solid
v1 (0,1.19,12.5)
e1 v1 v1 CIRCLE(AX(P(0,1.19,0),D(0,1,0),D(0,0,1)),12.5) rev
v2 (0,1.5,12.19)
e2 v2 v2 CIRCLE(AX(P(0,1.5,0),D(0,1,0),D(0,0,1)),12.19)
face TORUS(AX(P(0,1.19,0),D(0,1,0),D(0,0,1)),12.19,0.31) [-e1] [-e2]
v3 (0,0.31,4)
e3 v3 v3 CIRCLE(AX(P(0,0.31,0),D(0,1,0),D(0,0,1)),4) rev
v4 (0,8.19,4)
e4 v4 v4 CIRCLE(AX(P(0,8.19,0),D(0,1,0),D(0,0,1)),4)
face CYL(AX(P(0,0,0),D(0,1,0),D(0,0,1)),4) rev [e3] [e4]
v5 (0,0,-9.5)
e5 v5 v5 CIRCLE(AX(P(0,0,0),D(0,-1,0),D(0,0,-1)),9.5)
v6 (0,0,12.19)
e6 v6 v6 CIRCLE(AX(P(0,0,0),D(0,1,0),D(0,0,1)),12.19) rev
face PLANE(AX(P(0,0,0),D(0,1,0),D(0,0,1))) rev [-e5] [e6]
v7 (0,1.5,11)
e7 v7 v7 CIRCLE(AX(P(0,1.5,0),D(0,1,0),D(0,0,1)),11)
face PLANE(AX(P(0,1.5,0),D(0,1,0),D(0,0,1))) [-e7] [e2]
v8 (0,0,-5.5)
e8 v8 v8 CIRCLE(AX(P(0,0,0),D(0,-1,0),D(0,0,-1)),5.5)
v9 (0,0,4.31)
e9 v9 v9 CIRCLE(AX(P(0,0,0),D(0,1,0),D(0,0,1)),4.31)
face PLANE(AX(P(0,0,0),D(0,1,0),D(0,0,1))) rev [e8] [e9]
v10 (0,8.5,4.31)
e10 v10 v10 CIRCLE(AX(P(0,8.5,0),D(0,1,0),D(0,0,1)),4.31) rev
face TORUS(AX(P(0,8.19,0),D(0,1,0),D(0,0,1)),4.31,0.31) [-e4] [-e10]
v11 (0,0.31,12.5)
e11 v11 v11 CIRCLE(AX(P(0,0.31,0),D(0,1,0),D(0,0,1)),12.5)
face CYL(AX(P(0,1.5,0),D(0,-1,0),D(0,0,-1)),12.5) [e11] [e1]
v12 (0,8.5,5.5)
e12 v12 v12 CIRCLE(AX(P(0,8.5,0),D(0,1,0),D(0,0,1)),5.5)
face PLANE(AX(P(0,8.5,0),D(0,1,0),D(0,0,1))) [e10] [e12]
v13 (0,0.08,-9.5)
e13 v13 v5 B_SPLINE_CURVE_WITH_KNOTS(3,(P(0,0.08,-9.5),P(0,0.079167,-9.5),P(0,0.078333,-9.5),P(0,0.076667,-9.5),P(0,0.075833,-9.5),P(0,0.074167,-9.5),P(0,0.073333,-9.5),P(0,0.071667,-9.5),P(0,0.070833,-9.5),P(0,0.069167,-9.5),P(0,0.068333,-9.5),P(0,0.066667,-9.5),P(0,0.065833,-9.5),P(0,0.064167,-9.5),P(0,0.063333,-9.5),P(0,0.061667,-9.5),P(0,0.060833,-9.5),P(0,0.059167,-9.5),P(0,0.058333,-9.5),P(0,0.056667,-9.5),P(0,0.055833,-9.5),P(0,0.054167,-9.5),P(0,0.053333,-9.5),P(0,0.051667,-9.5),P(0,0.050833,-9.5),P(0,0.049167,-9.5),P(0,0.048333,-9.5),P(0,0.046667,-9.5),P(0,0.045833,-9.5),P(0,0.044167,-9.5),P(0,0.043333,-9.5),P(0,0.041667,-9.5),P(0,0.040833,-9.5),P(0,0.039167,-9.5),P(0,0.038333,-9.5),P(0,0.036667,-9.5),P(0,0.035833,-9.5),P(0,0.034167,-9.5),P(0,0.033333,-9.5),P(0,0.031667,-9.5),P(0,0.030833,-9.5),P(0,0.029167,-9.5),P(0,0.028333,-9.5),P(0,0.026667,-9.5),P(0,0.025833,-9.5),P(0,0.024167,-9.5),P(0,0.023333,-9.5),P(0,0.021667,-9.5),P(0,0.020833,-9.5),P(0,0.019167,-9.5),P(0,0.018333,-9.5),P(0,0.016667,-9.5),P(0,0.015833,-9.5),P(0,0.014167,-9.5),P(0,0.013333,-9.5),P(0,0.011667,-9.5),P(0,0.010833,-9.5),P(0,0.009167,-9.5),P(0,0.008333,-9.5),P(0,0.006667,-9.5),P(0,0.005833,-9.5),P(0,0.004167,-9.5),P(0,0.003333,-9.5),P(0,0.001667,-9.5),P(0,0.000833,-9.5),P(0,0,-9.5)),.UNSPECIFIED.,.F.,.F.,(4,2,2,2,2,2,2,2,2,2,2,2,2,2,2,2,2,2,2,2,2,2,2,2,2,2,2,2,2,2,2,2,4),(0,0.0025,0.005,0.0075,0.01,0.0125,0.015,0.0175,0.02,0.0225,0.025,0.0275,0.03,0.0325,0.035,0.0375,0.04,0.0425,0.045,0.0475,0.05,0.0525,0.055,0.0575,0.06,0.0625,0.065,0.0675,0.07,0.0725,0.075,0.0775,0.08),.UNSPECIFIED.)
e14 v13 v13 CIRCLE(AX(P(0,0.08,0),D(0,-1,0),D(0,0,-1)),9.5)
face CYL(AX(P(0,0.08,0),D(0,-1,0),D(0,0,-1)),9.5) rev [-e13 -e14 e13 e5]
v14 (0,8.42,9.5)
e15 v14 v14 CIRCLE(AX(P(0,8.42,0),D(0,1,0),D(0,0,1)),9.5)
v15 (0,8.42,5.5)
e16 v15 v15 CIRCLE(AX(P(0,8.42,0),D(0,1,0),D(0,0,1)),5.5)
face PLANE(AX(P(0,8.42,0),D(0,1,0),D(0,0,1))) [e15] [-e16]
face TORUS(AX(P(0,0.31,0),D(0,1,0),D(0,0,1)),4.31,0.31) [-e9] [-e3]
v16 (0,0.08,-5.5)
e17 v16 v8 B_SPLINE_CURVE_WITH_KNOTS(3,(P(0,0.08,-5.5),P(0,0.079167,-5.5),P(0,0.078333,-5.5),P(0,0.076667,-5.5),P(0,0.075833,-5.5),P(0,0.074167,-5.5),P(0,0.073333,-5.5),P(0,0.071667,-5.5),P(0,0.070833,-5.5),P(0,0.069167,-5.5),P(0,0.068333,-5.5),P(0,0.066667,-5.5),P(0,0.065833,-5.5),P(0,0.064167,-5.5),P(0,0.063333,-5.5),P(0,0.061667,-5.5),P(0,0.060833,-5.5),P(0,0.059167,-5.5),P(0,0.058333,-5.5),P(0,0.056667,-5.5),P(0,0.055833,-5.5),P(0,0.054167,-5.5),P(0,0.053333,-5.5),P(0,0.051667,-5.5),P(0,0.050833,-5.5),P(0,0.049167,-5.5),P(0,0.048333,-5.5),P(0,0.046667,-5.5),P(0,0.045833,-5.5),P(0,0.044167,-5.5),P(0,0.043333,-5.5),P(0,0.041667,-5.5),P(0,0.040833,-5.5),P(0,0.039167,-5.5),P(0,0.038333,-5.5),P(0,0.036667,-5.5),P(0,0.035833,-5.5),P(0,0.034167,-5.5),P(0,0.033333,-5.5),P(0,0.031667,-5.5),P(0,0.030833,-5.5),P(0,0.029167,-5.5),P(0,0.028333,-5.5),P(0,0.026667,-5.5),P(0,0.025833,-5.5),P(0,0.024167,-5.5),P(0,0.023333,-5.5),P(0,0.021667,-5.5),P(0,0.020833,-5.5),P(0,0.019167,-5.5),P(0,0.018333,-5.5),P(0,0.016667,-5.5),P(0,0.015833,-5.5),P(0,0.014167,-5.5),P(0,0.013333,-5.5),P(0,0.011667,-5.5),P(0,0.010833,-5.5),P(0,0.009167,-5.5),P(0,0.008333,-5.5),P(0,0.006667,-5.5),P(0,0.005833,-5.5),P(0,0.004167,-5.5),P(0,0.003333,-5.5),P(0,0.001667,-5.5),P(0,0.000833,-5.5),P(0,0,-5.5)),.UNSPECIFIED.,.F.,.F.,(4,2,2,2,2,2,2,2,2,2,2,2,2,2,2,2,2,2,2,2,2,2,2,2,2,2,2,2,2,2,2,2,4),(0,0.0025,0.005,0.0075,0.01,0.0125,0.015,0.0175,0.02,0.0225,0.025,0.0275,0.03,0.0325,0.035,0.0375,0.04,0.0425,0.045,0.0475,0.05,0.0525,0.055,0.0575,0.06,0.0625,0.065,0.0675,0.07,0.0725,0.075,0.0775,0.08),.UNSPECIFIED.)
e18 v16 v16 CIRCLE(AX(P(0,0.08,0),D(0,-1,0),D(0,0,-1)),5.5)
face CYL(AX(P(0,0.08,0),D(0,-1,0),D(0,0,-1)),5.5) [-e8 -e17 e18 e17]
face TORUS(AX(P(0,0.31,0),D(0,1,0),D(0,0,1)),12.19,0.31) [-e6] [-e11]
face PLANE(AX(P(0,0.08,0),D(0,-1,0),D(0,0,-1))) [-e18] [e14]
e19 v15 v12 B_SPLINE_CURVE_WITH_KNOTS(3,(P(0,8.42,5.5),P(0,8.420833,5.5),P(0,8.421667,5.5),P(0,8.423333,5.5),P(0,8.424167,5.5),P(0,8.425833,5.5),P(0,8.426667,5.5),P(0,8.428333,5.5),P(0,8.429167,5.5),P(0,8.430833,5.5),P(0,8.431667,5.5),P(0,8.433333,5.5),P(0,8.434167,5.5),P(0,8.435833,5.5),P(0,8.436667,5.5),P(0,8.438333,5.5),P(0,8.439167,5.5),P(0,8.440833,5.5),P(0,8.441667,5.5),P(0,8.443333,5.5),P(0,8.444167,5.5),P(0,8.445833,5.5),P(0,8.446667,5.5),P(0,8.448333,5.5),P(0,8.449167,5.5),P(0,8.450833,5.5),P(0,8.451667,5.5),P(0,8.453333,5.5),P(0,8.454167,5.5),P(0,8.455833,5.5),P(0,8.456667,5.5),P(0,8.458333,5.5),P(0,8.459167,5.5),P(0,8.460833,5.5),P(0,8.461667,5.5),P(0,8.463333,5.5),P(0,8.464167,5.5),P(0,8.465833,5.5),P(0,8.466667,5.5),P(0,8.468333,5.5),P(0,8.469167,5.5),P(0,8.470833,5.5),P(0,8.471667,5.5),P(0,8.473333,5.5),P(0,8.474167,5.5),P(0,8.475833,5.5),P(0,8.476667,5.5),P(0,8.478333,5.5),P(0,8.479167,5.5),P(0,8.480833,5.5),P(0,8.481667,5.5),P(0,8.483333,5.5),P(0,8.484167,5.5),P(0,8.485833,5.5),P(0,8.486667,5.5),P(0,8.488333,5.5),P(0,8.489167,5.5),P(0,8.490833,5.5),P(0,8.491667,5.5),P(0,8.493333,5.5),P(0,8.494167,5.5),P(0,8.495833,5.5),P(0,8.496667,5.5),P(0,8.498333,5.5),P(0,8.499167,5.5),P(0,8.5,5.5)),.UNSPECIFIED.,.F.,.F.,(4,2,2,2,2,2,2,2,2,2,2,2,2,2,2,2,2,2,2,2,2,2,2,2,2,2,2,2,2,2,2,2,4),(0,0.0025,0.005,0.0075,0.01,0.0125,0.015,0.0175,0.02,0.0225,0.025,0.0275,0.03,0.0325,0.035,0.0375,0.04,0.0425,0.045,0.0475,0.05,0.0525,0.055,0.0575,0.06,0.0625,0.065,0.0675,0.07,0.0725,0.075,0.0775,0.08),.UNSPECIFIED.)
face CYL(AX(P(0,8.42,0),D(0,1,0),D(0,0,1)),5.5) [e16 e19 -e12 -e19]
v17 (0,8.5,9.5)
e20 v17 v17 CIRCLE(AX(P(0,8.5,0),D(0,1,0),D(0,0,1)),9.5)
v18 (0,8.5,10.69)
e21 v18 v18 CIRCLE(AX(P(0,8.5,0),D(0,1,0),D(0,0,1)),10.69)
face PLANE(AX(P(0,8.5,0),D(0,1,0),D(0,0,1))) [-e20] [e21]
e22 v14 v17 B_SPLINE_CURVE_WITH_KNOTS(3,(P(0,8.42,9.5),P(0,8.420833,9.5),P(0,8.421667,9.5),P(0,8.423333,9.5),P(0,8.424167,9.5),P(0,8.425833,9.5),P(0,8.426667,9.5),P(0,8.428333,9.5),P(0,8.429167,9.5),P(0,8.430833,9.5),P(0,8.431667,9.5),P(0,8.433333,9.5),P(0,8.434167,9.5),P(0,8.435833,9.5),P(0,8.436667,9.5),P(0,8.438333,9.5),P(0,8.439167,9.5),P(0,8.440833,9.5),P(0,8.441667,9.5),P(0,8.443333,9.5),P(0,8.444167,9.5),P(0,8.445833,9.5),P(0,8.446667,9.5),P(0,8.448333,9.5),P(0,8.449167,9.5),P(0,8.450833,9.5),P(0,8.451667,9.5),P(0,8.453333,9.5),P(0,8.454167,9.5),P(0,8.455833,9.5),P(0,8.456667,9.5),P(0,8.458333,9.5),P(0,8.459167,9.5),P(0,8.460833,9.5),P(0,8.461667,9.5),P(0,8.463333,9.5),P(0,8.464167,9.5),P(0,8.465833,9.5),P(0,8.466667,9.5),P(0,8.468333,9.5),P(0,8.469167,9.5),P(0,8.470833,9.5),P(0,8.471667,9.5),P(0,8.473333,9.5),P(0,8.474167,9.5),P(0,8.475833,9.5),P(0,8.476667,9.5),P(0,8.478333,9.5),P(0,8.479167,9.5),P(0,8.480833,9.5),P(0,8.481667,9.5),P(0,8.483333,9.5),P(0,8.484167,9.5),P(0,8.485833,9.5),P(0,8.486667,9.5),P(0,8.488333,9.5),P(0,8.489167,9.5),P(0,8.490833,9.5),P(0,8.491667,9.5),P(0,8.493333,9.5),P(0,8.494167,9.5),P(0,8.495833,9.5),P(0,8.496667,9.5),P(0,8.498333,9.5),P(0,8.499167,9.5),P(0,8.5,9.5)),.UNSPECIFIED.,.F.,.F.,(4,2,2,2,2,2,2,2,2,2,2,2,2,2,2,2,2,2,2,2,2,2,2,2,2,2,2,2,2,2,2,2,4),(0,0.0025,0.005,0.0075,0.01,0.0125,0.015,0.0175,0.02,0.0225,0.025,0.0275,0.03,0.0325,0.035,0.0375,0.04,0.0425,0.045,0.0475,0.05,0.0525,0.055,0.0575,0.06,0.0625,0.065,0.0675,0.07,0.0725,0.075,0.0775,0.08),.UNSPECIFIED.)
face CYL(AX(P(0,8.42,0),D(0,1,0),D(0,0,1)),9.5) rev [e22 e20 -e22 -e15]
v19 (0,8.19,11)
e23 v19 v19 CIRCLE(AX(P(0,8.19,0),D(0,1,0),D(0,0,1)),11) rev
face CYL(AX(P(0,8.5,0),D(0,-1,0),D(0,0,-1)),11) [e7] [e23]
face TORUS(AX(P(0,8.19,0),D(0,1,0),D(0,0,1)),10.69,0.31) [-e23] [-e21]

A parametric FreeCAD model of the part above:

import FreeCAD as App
import Part
import Sketcher

V = App.Vector
Q = App.Units.Quantity


def edges_at(feature, points):
    """Names of the edges that pass closest to the given points."""
    edges = feature.Shape.Edges
    near = lambda p: min(range(len(edges)), key=lambda i: edges[i].distToShape(Part.Vertex(*p))[0])
    return sorted({f"Edge{near(p) + 1}" for p in points})

doc = App.newDocument("Part")
body = doc.addObject("PartDesign::Body", "Body")

# Sketch on XZ plane
sketch1 = body.newObject("Sketcher::SketchObject", "Sketch")
sketch1.AttachmentSupport = (doc.getObject("XZ_Plane"), [""])
sketch1.MapMode = "FlatFace"
sketch1.addGeometry(Part.Circle(V(0, 0, 0), V(0, 0, 1), 12), False)
sketch1.addConstraint(Sketcher.Constraint("Coincident", 0, 3, -1, 1))
sketch1.addConstraint(Sketcher.Constraint("Diameter", 0, Q("25 mm")))
pad1 = body.newObject("PartDesign::Pad", "Pad")
pad1.Profile = sketch1
pad1.Length = 1.5
pad1.Reversed = True

# Sketch on XZ plane
sketch2 = body.newObject("Sketcher::SketchObject", "Sketch001")
sketch2.AttachmentSupport = (doc.getObject("XZ_Plane"), [""])
sketch2.MapMode = "FlatFace"
sketch2.AttachmentOffset = App.Placement(V(0, 0, -1.5), App.Rotation())
sketch2.addGeometry(Part.Circle(V(0, 0, 0), V(0, 0, 1), 11), False)
sketch2.addConstraint(Sketcher.Constraint("Coincident", 0, 3, -1, 1))
sketch2.addConstraint(Sketcher.Constraint("Diameter", 0, Q("22 mm")))
pad2 = body.newObject("PartDesign::Pad", "Pad001")
pad2.Profile = sketch2
pad2.Length = 7
pad2.Reversed = True

# Sketch on XZ plane
sketch3 = body.newObject("Sketcher::SketchObject", "Sketch002")
sketch3.AttachmentSupport = (doc.getObject("XZ_Plane"), [""])
sketch3.MapMode = "FlatFace"
sketch3.AttachmentOffset = App.Placement(V(0, 0, -8.5), App.Rotation())
sketch3.addGeometry(Part.Circle(V(0, 0, 0), V(0, 0, 1), 4), False)
sketch3.addConstraint(Sketcher.Constraint("Coincident", 0, 3, -1, 1))
sketch3.addConstraint(Sketcher.Constraint("Diameter", 0, Q("8 mm")))
pocket1 = body.newObject("PartDesign::Pocket", "Pocket")
pocket1.Profile = sketch3
pocket1.Type = "ThroughAll"
pocket1.Reversed = True

# Sketch on XZ plane
sketch4 = body.newObject("Sketcher::SketchObject", "Sketch003")
sketch4.AttachmentSupport = (doc.getObject("XZ_Plane"), [""])
sketch4.MapMode = "FlatFace"
sketch4.addGeometry(Part.Circle(V(0, 0, 0), V(0, 0, 1), 10), False)
sketch4.addGeometry(Part.Circle(V(0, 0, 0), V(0, 0, 1), 6), False)
sketch4.addConstraint(Sketcher.Constraint("Coincident", 0, 3, -1, 1))
sketch4.addConstraint(Sketcher.Constraint("Coincident", 1, 3, -1, 1))
sketch4.addConstraint(Sketcher.Constraint("Diameter", 0, Q("19 mm")))
sketch4.addConstraint(Sketcher.Constraint("Diameter", 1, Q("11 mm")))
pocket2 = body.newObject("PartDesign::Pocket", "Pocket001")
pocket2.Profile = sketch4
pocket2.Length = 0.08

# Sketch on XZ plane
sketch5 = body.newObject("Sketcher::SketchObject", "Sketch004")
sketch5.AttachmentSupport = (doc.getObject("XZ_Plane"), [""])
sketch5.MapMode = "FlatFace"
sketch5.AttachmentOffset = App.Placement(V(0, 0, -8.42), App.Rotation())
sketch5.addGeometry(Part.Circle(V(0, 0, 0), V(0, 0, 1), 10), False)
sketch5.addGeometry(Part.Circle(V(0, 0, 0), V(0, 0, 1), 6), False)
sketch5.addConstraint(Sketcher.Constraint("Coincident", 0, 3, -1, 1))
sketch5.addConstraint(Sketcher.Constraint("Coincident", 1, 3, -1, 1))
sketch5.addConstraint(Sketcher.Constraint("Diameter", 0, Q("19 mm")))
sketch5.addConstraint(Sketcher.Constraint("Diameter", 1, Q("11 mm")))
pocket3 = body.newObject("PartDesign::Pocket", "Pocket002")
pocket3.Profile = sketch5
pocket3.Length = 0.08
doc.recompute()

fillet = body.newObject("PartDesign::Fillet", "Fillet")
fillet.Base = (pocket3, edges_at(pocket3, [
    (0, 0, -4),
    (0, 8.5, -4),
    (0, 0, -12.5),
    (0, 1.5, -12.5),
    (0, 8.5, -11),
]))
fillet.Radius = 0.31

doc.recompute()
